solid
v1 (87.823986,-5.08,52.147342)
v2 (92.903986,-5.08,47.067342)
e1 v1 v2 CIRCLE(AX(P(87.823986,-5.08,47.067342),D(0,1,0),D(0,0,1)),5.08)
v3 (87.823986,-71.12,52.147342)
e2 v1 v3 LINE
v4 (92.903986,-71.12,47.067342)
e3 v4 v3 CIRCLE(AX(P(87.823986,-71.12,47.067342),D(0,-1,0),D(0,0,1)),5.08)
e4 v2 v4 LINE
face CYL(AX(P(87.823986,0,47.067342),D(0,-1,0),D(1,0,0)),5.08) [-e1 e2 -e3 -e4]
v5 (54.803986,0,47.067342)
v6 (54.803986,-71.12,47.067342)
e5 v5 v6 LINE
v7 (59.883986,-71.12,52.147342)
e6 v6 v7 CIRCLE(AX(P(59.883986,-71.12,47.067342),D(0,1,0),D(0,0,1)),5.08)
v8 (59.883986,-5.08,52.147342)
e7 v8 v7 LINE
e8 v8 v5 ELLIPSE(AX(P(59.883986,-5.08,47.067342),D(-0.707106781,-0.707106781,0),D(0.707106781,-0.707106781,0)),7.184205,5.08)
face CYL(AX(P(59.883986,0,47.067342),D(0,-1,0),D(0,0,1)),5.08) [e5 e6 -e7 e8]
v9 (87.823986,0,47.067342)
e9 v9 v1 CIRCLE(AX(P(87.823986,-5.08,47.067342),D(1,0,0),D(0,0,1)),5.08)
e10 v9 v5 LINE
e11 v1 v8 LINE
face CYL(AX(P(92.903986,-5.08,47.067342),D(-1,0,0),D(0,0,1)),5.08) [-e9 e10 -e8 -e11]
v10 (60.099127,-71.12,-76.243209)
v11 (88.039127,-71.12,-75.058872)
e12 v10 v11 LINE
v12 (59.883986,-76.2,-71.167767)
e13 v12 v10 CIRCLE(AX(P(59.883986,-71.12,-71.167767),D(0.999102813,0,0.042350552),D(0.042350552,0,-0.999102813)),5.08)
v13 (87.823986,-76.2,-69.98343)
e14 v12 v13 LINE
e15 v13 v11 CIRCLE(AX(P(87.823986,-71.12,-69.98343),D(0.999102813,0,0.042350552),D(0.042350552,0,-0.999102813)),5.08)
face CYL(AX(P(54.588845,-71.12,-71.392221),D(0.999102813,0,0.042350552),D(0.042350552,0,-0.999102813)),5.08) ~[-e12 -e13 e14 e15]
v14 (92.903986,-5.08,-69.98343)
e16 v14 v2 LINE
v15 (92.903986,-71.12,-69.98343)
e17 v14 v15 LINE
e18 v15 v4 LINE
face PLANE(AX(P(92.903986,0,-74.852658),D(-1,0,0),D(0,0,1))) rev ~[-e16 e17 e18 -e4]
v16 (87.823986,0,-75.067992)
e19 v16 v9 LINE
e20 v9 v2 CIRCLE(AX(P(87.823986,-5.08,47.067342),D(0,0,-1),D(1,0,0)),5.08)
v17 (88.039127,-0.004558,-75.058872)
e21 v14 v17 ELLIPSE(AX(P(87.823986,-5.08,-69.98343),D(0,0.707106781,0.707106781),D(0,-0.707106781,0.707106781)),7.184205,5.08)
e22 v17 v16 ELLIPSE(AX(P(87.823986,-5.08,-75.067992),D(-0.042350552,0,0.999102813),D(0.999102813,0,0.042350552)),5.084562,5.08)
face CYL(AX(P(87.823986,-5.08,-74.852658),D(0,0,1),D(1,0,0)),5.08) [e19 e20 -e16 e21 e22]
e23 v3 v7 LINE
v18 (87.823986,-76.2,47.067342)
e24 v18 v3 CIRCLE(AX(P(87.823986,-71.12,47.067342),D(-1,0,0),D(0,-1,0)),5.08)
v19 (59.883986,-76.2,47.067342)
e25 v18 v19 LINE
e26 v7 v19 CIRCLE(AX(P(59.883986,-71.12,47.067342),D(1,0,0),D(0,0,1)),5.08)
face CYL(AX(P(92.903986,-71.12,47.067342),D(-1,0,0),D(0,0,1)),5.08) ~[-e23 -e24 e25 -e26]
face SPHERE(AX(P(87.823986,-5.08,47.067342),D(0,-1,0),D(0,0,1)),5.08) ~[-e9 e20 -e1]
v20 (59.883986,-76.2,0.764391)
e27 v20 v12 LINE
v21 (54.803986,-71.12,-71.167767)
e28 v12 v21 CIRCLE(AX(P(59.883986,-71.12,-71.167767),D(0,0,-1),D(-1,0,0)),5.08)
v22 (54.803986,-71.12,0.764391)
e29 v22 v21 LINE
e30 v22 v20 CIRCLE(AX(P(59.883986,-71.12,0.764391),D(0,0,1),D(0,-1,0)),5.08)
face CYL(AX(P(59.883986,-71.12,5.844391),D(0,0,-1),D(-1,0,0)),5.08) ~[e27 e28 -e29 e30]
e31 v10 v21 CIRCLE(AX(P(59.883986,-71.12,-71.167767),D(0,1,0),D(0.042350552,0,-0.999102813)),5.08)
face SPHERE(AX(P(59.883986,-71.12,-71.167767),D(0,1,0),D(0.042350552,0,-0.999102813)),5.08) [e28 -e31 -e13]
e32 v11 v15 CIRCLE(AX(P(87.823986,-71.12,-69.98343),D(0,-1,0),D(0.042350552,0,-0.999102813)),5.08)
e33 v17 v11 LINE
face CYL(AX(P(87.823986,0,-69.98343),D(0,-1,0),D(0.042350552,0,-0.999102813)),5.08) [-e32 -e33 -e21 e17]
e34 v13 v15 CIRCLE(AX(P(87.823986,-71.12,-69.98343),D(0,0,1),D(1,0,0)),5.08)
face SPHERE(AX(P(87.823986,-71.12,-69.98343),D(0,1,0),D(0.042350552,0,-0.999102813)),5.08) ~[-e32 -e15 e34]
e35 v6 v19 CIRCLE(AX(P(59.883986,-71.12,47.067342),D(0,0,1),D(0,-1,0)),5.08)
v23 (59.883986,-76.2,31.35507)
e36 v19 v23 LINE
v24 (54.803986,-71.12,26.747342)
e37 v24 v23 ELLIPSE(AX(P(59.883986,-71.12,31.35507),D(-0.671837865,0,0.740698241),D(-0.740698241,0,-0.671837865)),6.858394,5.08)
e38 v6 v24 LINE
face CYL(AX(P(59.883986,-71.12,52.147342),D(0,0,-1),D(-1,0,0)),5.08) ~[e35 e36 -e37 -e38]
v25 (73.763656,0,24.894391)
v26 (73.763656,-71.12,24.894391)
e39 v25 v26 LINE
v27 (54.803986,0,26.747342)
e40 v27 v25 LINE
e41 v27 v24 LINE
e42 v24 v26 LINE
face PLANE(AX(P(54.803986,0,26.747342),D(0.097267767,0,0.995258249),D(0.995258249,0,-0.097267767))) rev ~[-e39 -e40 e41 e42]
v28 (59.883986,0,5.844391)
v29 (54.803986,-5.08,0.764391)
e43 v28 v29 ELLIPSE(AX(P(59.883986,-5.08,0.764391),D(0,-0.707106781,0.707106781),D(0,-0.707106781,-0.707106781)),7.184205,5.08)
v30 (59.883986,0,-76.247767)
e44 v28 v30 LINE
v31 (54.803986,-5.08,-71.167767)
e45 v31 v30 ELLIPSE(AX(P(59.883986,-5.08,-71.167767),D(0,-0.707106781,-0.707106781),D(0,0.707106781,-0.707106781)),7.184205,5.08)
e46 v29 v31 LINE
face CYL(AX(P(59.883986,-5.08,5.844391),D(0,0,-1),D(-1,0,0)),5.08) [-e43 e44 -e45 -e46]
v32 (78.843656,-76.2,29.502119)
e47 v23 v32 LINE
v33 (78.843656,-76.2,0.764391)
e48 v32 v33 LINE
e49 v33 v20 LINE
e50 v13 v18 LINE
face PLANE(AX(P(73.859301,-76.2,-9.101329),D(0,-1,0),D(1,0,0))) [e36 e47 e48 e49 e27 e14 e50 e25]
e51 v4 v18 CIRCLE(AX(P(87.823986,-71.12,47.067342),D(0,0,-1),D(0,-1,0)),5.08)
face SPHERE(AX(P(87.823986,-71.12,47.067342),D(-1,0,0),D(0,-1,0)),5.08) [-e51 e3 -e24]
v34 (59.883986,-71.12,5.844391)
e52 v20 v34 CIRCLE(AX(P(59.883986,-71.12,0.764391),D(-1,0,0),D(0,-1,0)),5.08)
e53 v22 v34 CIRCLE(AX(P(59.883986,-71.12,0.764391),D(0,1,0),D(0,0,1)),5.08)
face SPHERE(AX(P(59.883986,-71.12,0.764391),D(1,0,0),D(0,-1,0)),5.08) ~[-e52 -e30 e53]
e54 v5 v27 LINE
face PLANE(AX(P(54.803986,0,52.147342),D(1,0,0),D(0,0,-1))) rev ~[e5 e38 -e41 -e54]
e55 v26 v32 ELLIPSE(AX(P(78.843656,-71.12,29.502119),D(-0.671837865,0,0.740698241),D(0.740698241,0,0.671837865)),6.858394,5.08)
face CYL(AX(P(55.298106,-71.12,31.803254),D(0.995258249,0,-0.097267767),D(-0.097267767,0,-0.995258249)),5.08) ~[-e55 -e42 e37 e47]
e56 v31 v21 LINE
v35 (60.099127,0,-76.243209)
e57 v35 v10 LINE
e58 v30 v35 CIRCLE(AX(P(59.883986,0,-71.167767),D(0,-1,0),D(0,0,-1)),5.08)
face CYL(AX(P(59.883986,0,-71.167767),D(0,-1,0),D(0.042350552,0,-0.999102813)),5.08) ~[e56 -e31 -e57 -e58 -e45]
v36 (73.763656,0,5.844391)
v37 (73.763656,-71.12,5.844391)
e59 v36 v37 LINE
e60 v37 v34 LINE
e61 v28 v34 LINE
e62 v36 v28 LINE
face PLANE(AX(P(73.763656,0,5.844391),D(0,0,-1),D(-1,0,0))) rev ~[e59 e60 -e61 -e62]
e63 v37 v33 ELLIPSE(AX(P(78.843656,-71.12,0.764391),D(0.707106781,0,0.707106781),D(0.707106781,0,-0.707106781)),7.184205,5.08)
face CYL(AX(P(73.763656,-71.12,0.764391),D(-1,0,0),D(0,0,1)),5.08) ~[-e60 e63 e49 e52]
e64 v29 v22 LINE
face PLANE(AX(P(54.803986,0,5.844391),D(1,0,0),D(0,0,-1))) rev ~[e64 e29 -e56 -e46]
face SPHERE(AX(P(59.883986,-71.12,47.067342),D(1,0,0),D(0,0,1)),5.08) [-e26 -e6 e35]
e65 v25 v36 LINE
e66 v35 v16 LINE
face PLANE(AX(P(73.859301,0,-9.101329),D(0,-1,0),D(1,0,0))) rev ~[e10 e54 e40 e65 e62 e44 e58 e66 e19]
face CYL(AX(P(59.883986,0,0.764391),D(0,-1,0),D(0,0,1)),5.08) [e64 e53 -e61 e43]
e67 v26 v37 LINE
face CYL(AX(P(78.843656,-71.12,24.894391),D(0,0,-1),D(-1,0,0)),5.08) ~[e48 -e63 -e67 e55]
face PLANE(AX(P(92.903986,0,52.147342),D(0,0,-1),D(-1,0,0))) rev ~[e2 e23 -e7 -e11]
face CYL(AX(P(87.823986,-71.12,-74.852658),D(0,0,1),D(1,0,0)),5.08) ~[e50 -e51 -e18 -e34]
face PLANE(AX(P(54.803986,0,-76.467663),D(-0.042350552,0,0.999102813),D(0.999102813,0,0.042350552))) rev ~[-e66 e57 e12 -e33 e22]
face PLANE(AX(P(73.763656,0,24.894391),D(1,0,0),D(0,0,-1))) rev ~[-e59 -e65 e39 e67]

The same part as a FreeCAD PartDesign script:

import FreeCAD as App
import Part
import Sketcher
from FreeCAD import Vector
Q = App.Units.Quantity


def edges_at(feature, points):
    """Names of the edges that pass closest to the given points."""
    edges = feature.Shape.Edges
    near = lambda p: min(range(len(edges)), key=lambda i: edges[i].distToShape(Part.Vertex(*p))[0])
    return sorted({f"Edge{near(p) + 1}" for p in points})

doc = App.newDocument("Part")
params = doc.addObject("Spreadsheet::Sheet", "Params")
for row, (alias, value) in enumerate([
    ("sketch1_height", "5 in"),
    ("sketch1_height2", "1 in"),
    ("sketch1_width", "1.5 in"),
    ("sketch1_height3", "0.75 in"),
    ("sketch1_length", "0.75 in"),
    ("pad1_length", "3 in"),
    ("fillet_radius", "0.2 in"),
], start=1):
    params.set(f"A{row}", alias)
    params.set(f"B{row}", "=" + value)
    params.setAlias(f"B{row}", alias)

body = doc.addObject("PartDesign::Body", "Body")

# Sketch on XZ plane
sketch1 = body.newObject("Sketcher::SketchObject", "Sketch")
sketch1.AttachmentSupport = (doc.getObject("XZ_Plane"), [""])
sketch1.MapMode = "FlatFace"
sketch1.addGeometry([
    Part.LineSegment(Vector(55, -76, 0), Vector(93, -75, 0)),  # 0
    Part.LineSegment(Vector(93, -75, 0), Vector(93, 52, 0)),  # 1
    Part.LineSegment(Vector(93, 52, 0), Vector(55, 52, 0)),  # 2
    Part.LineSegment(Vector(55, 52, 0), Vector(55, 27, 0)),  # 3
    Part.LineSegment(Vector(55, 27, 0), Vector(74, 25, 0)),  # 4
    Part.LineSegment(Vector(74, 25, 0), Vector(74, 6, 0)),  # 5
    Part.LineSegment(Vector(74, 6, 0), Vector(55, 6, 0)),  # 6
    Part.LineSegment(Vector(55, 6, 0), Vector(55, -76, 0)),  # 7
], False)
sketch1.addConstraint([
    Sketcher.Constraint("Coincident", 0, 2, 1, 1),
    Sketcher.Constraint("Coincident", 1, 2, 2, 1),
    Sketcher.Constraint("Coincident", 2, 2, 3, 1),
    Sketcher.Constraint("Coincident", 3, 2, 4, 1),
    Sketcher.Constraint("Coincident", 4, 2, 5, 1),
    Sketcher.Constraint("Coincident", 5, 2, 6, 1),
    Sketcher.Constraint("Coincident", 6, 2, 7, 1),
    Sketcher.Constraint("Coincident", 7, 2, 0, 1),
    Sketcher.Constraint("Vertical", 1),
    Sketcher.Constraint("Horizontal", 2),
    Sketcher.Constraint("Vertical", 3),
    Sketcher.Constraint("Vertical", 5),
    Sketcher.Constraint("Horizontal", 6),
    Sketcher.Constraint("Vertical", 7),
    Sketcher.Constraint("Vertical", 3, 2, 6, 2),
    Sketcher.Constraint("DistanceY", 1, 1, 1, 2, Q("5 in")),
    Sketcher.Constraint("DistanceY", 3, 2, 3, 1, Q("1 in")),
    Sketcher.Constraint("DistanceX", 2, 2, 2, 1, Q("1.5 in")),
    Sketcher.Constraint("DistanceY", 5, 2, 5, 1, Q("0.75 in")),
    Sketcher.Constraint("Distance", 4, Q("0.75 in")),
    Sketcher.Constraint("DistanceX", 6, 2, 6, 1, 18.95967),
    Sketcher.Constraint("DistanceY", 7, 2, 7, 1, 82.312054),
    Sketcher.Constraint("DistanceY", 0, 2, -1, 1, 74.852658),
    Sketcher.Constraint("DistanceX", -1, 1, 0, 2, 92.903986),
])
sketch1.setExpression("Constraints[15]", "Params.sketch1_height")
sketch1.setExpression("Constraints[16]", "Params.sketch1_height2")
sketch1.setExpression("Constraints[17]", "Params.sketch1_width")
sketch1.setExpression("Constraints[18]", "Params.sketch1_height3")
sketch1.setExpression("Constraints[19]", "Params.sketch1_length")
pad1 = body.newObject("PartDesign::Pad", "Pad")
pad1.Profile = sketch1
pad1.setExpression("Length", "Params.pad1_length")
doc.recompute()

fillet = body.newObject("PartDesign::Fillet", "Fillet")
fillet.Base = (pad1, edges_at(pad1, [
    (73.854, -76.2, 52.147),
    (54.804, -38.1, 52.147),
    (73.854, -76.2, -75.66),
    (92.904, -76.2, -11.353),
    (54.804, -76.2, 39.447),
    (64.284, -76.2, 25.821),
    (73.764, -76.2, 15.369),
    (64.284, -76.2, 5.844),
    (54.804, -76.2, -35.312),
    (54.804, -38.1, 5.844),
    (54.804, -38.1, -76.468),
    (54.804, 0, -35.312),
    (92.904, -38.1, 52.147),
    (73.854, 0, 52.147),
    (92.904, 0, -11.353),
    (92.904, -38.1, -74.853),
]))
fillet.setExpression("Radius", "Params.fillet_radius")

doc.recompute()
